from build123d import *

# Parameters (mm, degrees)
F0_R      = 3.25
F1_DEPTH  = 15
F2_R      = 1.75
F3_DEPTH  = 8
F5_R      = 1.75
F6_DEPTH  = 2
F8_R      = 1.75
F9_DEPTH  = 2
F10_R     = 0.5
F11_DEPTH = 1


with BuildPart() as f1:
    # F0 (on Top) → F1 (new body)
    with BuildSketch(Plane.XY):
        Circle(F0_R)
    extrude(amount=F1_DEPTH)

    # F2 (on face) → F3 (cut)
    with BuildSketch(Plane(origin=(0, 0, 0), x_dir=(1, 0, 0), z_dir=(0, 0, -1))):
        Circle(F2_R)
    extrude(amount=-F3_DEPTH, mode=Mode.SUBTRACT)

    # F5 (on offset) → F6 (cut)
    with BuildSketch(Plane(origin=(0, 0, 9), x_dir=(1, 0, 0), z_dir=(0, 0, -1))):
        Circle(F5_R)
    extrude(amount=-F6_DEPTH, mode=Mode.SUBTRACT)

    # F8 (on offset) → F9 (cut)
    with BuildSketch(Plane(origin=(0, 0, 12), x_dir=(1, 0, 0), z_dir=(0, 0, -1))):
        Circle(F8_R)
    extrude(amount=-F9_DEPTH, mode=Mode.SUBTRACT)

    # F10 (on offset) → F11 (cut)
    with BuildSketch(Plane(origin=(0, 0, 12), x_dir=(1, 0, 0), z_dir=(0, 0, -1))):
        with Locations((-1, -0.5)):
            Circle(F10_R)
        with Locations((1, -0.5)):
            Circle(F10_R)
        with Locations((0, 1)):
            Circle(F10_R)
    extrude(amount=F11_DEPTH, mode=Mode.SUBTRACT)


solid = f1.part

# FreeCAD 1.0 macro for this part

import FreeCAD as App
import Part
import Sketcher
Q = App.Units.Quantity

doc = App.newDocument("Part")
body = doc.addObject("PartDesign::Body", "Body")

# Sketch on XY plane
sketch1 = body.newObject("Sketcher::SketchObject", "Sketch")
sketch1.AttachmentSupport = (doc.getObject("XY_Plane"), [""])
sketch1.MapMode = "FlatFace"
sketch1.addGeometry(Part.Circle(App.Vector(0, 0, 0), App.Vector(0, 0, 1), 3.2), False)
sketch1.addConstraint([
    Sketcher.Constraint("Coincident", 0, 3, -1, 1),
    Sketcher.Constraint("Diameter", 0, Q("6.5 mm")),
])
pad1 = body.newObject("PartDesign::Pad", "Pad")
pad1.Profile = sketch1
pad1.Length = 15

# Sketch on XY plane
sketch2 = body.newObject("Sketcher::SketchObject", "Sketch001")
sketch2.AttachmentSupport = (doc.getObject("XY_Plane"), [""])
sketch2.MapMode = "FlatFace"
sketch2.addGeometry(Part.Circle(App.Vector(0, 0, 0), App.Vector(0, 0, 1), 1.8), False)
sketch2.addConstraint([
    Sketcher.Constraint("Coincident", 0, 3, -1, 1),
    Sketcher.Constraint("Diameter", 0, Q("3.5 mm")),
])
pocket1 = body.newObject("PartDesign::Pocket", "Pocket")
pocket1.Profile = sketch2
pocket1.Length = 8
pocket1.Reversed = True

# Sketch on XY plane
sketch3 = body.newObject("Sketcher::SketchObject", "Sketch002")
sketch3.AttachmentSupport = (doc.getObject("XY_Plane"), [""])
sketch3.MapMode = "FlatFace"
sketch3.AttachmentOffset = App.Placement(App.Vector(0, 0, 9), App.Rotation())
sketch3.addGeometry(Part.Circle(App.Vector(0, 0, 0), App.Vector(0, 0, 1), 1.8), False)
sketch3.addConstraint([
    Sketcher.Constraint("Coincident", 0, 3, -1, 1),
    Sketcher.Constraint("Diameter", 0, Q("3.5 mm")),
])
pocket2 = body.newObject("PartDesign::Pocket", "Pocket001")
pocket2.Profile = sketch3
pocket2.Length = 2
pocket2.Reversed = True

# Sketch on XY plane
sketch4 = body.newObject("Sketcher::SketchObject", "Sketch003")
sketch4.AttachmentSupport = (doc.getObject("XY_Plane"), [""])
sketch4.MapMode = "FlatFace"
sketch4.AttachmentOffset = App.Placement(App.Vector(0, 0, 12), App.Rotation())
sketch4.addGeometry(Part.Circle(App.Vector(0, 0, 0), App.Vector(0, 0, 1), 1.8), False)
sketch4.addConstraint([
    Sketcher.Constraint("Coincident", 0, 3, -1, 1),
    Sketcher.Constraint("Diameter", 0, Q("3.5 mm")),
])
pocket3 = body.newObject("PartDesign::Pocket", "Pocket002")
pocket3.Profile = sketch4
pocket3.Length = 2
pocket3.Reversed = True

# Sketch on XY plane
sketch5 = body.newObject("Sketcher::SketchObject", "Sketch004")
sketch5.AttachmentSupport = (doc.getObject("XY_Plane"), [""])
sketch5.MapMode = "FlatFace"
sketch5.AttachmentOffset = App.Placement(App.Vector(0, 0, 12), App.Rotation())
sketch5.addGeometry([
    Part.Circle(App.Vector(-1, 0.5, 0), App.Vector(0, 0, 1), 0.5),
    Part.Circle(App.Vector(1, 0.5, 0), App.Vector(0, 0, 1), 0.5),
    Part.Circle(App.Vector(0, -1, 0), App.Vector(0, 0, 1), 0.5),
], False)
sketch5.addConstraint([
    Sketcher.Constraint("Equal", 0, 1),
    Sketcher.Constraint("Equal", 1, 2),
    Sketcher.Constraint("Symmetric", 0, 3, 1, 3, -2),
    Sketcher.Constraint("PointOnObject", 2, 3, -2),
    Sketcher.Constraint("Diameter", 0, Q("1 mm")),
    Sketcher.Constraint("DistanceX", 0, 3, -1, 1, Q("1 mm")),
    Sketcher.Constraint("DistanceY", 2, 3, -1, 1, Q("1 mm")),
    Sketcher.Constraint("DistanceY", -1, 1, 0, 3, Q("0.5 mm")),
])
pocket4 = body.newObject("PartDesign::Pocket", "Pocket003")
pocket4.Profile = sketch5
pocket4.Length = 1

doc.recompute()
